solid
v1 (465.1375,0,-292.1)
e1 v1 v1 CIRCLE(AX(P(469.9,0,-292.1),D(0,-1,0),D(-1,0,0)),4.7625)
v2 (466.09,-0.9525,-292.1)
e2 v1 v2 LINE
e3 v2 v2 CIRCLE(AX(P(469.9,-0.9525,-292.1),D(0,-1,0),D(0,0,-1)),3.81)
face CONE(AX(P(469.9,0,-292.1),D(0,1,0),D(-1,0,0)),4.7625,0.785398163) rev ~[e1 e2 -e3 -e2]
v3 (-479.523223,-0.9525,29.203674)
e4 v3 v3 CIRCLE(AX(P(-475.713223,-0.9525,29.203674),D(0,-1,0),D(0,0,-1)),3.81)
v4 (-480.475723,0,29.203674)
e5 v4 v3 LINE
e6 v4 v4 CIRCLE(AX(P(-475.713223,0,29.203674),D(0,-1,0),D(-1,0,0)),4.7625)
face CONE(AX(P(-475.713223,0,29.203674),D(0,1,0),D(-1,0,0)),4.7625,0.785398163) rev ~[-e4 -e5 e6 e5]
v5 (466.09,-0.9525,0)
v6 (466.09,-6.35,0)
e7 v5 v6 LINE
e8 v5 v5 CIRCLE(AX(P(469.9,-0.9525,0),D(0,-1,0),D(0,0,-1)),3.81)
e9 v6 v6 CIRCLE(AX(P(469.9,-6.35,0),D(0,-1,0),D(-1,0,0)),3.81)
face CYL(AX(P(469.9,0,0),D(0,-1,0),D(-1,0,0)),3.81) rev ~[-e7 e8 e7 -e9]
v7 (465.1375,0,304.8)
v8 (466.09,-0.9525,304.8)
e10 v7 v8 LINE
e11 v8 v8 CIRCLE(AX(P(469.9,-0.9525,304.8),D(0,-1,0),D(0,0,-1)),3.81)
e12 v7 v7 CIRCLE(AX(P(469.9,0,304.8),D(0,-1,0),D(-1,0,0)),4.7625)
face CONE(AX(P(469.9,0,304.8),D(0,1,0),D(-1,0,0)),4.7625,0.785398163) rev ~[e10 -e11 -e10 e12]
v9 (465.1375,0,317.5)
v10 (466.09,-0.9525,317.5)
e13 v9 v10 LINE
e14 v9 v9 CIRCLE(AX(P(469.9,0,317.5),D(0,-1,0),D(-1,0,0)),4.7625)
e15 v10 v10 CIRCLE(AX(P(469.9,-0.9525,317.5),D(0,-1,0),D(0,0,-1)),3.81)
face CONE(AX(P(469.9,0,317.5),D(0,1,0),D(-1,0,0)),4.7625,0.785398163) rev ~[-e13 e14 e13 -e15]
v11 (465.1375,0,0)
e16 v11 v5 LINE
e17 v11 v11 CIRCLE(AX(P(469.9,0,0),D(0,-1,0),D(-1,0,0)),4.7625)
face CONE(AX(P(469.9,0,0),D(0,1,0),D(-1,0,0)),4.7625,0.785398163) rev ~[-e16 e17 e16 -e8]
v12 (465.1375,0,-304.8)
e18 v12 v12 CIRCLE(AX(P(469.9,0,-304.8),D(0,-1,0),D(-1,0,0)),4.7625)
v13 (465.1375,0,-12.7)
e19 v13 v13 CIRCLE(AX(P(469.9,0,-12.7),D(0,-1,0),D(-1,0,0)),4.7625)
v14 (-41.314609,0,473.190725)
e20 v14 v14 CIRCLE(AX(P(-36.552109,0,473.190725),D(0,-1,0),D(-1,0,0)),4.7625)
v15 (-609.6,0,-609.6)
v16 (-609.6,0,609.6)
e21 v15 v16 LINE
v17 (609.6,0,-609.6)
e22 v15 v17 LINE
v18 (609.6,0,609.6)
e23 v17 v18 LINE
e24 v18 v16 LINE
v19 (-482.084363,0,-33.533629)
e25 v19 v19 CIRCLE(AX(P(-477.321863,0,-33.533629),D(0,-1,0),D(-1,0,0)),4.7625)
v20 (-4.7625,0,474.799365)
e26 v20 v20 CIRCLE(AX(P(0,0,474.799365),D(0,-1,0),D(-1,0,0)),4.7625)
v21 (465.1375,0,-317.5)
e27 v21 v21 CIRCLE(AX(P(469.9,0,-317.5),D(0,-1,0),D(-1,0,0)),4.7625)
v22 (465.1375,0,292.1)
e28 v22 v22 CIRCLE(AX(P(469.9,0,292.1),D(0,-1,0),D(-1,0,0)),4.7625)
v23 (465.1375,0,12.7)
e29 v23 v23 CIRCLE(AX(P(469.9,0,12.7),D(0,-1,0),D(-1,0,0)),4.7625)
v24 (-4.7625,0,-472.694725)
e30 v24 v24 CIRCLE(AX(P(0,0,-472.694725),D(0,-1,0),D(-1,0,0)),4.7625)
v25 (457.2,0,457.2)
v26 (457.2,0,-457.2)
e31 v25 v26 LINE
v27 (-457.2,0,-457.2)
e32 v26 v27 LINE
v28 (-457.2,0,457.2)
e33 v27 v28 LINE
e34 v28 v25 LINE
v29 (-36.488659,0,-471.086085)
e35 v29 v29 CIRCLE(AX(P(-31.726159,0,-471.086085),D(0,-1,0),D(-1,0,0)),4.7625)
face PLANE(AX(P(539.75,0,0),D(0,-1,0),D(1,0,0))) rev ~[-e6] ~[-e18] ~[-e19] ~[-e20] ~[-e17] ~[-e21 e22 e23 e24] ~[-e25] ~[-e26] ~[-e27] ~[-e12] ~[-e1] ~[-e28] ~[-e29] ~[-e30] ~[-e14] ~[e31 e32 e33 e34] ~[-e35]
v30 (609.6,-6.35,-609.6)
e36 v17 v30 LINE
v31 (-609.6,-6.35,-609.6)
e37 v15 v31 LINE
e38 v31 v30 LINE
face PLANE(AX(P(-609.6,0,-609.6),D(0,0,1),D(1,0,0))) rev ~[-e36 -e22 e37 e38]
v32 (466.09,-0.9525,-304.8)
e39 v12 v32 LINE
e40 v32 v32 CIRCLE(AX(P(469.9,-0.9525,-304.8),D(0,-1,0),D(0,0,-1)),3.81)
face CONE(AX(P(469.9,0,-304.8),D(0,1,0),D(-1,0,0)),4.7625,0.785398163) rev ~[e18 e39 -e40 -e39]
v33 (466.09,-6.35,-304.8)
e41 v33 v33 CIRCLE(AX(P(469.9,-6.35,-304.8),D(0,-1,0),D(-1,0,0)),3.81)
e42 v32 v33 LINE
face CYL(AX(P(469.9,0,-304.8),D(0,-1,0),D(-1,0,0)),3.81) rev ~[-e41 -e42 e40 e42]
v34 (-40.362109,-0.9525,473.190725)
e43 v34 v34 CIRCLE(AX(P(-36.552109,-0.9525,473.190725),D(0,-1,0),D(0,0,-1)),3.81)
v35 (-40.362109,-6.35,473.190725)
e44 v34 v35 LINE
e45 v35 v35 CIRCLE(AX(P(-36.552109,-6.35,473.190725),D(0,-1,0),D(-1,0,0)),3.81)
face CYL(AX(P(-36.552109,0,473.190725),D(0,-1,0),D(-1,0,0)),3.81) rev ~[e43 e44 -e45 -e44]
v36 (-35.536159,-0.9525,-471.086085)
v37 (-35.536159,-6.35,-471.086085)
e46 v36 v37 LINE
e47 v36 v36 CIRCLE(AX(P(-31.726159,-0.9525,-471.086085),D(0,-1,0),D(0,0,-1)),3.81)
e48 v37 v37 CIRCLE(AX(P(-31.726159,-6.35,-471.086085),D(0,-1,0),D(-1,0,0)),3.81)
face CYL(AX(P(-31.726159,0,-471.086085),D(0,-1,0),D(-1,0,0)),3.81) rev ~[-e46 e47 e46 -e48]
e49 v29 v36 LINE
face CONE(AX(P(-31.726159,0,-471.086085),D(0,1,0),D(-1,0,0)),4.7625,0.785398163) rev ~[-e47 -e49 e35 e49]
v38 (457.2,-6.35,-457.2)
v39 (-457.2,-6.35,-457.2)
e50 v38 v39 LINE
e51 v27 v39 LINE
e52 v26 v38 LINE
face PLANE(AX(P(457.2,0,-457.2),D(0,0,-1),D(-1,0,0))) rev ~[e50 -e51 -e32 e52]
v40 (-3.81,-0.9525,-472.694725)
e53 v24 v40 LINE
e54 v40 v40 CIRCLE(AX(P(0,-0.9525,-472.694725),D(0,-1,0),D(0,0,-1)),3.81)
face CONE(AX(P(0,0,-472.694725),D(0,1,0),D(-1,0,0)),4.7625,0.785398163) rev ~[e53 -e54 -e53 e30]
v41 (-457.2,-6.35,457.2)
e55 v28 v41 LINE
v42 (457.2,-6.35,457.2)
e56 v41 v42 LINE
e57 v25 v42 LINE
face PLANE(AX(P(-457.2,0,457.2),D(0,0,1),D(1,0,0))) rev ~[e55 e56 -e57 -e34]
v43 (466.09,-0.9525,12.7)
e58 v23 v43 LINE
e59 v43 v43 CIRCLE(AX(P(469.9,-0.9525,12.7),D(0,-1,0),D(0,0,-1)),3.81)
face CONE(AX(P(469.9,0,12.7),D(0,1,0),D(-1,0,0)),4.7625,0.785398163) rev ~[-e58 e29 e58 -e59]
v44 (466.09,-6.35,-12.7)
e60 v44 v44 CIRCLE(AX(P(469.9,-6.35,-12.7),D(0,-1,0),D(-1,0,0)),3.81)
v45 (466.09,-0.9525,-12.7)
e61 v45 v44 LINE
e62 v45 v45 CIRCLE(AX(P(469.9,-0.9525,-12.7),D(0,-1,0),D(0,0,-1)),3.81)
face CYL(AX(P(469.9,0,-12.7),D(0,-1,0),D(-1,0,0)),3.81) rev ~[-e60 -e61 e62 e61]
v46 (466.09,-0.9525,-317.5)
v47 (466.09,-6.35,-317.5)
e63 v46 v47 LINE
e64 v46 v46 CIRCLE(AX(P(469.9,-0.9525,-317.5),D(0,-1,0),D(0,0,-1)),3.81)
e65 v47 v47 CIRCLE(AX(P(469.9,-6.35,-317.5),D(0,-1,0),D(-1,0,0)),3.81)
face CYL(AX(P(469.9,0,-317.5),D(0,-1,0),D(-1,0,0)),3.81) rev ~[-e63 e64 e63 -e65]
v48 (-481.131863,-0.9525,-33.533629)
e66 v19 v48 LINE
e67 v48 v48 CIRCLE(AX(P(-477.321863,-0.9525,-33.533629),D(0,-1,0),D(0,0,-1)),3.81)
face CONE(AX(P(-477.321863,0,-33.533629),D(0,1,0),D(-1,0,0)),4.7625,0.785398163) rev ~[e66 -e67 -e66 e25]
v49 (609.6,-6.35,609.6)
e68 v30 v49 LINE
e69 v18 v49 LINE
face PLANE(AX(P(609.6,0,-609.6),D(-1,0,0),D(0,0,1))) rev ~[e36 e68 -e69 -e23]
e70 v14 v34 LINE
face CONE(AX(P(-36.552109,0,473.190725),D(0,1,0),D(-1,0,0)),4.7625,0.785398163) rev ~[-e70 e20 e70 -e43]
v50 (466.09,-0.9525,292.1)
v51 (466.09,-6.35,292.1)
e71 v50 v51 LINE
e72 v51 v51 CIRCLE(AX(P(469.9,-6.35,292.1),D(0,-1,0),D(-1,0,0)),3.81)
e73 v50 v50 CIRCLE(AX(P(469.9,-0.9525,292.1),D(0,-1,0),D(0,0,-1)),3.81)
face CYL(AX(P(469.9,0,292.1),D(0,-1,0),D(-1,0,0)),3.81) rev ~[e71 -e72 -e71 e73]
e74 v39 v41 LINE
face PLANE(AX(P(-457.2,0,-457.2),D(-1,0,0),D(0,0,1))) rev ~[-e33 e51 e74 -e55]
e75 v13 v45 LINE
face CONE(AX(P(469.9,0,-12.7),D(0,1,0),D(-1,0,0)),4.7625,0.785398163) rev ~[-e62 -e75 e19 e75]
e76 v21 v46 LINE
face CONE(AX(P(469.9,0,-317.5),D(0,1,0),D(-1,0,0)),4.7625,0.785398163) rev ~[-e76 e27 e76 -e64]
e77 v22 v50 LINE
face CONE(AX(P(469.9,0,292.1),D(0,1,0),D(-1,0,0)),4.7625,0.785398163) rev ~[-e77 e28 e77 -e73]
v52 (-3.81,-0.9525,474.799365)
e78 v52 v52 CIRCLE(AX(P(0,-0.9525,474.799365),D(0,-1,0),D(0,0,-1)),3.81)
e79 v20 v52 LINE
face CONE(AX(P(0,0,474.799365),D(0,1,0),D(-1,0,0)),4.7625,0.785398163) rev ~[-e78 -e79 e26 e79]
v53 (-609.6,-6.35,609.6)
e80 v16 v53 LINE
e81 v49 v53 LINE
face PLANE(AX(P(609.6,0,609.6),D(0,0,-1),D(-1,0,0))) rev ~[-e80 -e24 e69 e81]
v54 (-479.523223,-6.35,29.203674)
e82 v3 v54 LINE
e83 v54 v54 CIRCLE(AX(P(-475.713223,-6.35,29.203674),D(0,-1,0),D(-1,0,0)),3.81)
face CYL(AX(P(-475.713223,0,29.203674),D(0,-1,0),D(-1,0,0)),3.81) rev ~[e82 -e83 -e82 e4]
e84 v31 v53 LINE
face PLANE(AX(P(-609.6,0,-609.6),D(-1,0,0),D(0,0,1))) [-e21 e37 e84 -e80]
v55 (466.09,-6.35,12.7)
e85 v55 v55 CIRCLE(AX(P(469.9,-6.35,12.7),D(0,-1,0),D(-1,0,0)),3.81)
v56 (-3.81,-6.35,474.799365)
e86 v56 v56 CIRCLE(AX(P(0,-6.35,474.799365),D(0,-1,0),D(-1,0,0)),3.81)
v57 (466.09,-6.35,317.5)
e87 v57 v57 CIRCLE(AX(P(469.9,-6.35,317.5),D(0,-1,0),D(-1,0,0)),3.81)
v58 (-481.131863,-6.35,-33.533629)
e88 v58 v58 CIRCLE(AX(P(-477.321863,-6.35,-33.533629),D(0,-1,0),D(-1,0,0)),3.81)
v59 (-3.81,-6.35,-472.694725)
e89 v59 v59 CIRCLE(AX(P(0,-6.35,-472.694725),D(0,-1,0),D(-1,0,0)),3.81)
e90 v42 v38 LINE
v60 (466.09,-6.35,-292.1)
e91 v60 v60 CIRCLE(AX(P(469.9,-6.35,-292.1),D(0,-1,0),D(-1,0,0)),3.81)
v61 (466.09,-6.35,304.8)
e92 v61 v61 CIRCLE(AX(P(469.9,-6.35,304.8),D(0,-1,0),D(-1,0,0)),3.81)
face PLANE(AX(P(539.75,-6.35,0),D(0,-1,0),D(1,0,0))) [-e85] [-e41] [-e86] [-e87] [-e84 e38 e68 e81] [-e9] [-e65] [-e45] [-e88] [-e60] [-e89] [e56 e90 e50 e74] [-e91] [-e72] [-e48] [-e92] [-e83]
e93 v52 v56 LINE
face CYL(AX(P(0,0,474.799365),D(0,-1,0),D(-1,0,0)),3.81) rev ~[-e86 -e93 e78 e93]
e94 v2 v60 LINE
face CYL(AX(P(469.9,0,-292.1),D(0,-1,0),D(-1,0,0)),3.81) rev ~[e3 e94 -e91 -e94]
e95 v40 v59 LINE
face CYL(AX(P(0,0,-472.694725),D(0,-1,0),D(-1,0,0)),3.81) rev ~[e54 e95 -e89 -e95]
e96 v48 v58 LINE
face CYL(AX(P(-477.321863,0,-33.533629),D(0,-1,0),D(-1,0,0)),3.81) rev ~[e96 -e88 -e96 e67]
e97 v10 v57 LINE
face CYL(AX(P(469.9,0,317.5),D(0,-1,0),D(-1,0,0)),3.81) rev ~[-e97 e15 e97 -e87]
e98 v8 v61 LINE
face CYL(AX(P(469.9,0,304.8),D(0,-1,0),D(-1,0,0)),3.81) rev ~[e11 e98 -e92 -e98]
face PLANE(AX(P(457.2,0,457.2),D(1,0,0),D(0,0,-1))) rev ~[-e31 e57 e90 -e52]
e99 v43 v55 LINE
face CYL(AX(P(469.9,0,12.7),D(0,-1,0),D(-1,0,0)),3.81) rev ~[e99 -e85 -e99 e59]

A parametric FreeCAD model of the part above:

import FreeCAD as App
import Part
import Sketcher
from FreeCAD import Vector
Q = App.Units.Quantity


def add_polygon(sketch, points):
    """Adds a closed chain of lines whose ends are joined by coincident constraints."""
    first, n = sketch.GeometryCount, len(points)
    for a, b in zip(points, points[1:] + points[:1]):
        sketch.addGeometry(Part.LineSegment(App.Vector(*a, 0), App.Vector(*b, 0)), False)
    for i in range(n):
        sketch.addConstraint(Sketcher.Constraint("Coincident", first + i, 2, first + (i + 1) % n, 1))

doc = App.newDocument("Part")
params = doc.addObject("Spreadsheet::Sheet", "Params")
for row, (alias, value) in enumerate([
    ("sketch1_width", "48 in"),
    ("sketch1_width2", "36 in"),
    ("pad1_length", "0.25 in"),
    ("sketch2_diameter", "0.3 in"),
    ("hole_diameter", "0.3 in"),
    ("hole_csink_diameter", "0.375 in"),
], start=1):
    params.set(f"A{row}", alias)
    params.set(f"B{row}", "=" + value)
    params.setAlias(f"B{row}", alias)

body = doc.addObject("PartDesign::Body", "Body")

# Sketch on XZ plane
sketch1 = doc.addObject("Sketcher::SketchObject", "Sketch")
body.addObject(sketch1)
sketch1.AttachmentSupport = (doc.XZ_Plane, [""])
sketch1.MapMode = "FlatFace"
add_polygon(sketch1, [(610, -610), (610, 610), (-610, 610), (-610, -610)])  # lines 0-3
add_polygon(sketch1, [(457, 457), (457, -457), (-457, -457), (-457, 457)])  # lines 4-7
sketch1.addConstraint([
    Sketcher.Constraint("Vertical", 0),
    Sketcher.Constraint("Horizontal", 1),
    Sketcher.Constraint("Vertical", 2),
    Sketcher.Constraint("Horizontal", 3),
    Sketcher.Constraint("Vertical", 4),
    Sketcher.Constraint("Horizontal", 5),
    Sketcher.Constraint("Vertical", 6),
    Sketcher.Constraint("Horizontal", 7),
    Sketcher.Constraint("Symmetric", 0, 2, 2, 2, -1, 1),
    Sketcher.Constraint("Symmetric", 4, 2, 6, 2, -1, 1),
    Sketcher.Constraint("Equal", 3, 0),
    Sketcher.Constraint("Equal", 7, 4),
    Sketcher.Constraint("DistanceX", 1, 2, 1, 1, Q("48 in")),
    Sketcher.Constraint("DistanceX", 5, 2, 5, 1, Q("36 in")),
])
sketch1.setExpression("Constraints[20]", "Params.sketch1_width")
sketch1.setExpression("Constraints[21]", "Params.sketch1_width2")
pad1 = doc.addObject("PartDesign::Pad", "Pad")
body.addObject(pad1)
pad1.Profile = sketch1
pad1.setExpression("Length", "Params.pad1_length")

# Sketch on XZ plane
sketch2 = doc.addObject("Sketcher::SketchObject", "Sketch001")
body.addObject(sketch2)
sketch2.AttachmentSupport = (doc.XZ_Plane, [""])
sketch2.MapMode = "FlatFace"
sketch2.addGeometry([
    Part.Circle(Vector(469.9, 317.5, 0), Vector(0, 0, 1), 3.8),  # 0
    Part.Circle(Vector(469.9, 304.8, 0), Vector(0, 0, 1), 3.8),  # 1
    Part.Circle(Vector(469.9, 292.1, 0), Vector(0, 0, 1), 3.8),  # 2
    Part.Circle(Vector(469.9, 12.7, 0), Vector(0, 0, 1), 3.8),  # 3
    Part.Circle(Vector(469.9, -12.7, 0), Vector(0, 0, 1), 3.8),  # 4
    Part.Circle(Vector(469.9, 0, 0), Vector(0, 0, 1), 3.8),  # 5
    Part.Circle(Vector(469.9, -292.1, 0), Vector(0, 0, 1), 3.8),  # 6
    Part.Circle(Vector(469.9, -304.8, 0), Vector(0, 0, 1), 3.8),  # 7
    Part.Circle(Vector(469.9, -317.5, 0), Vector(0, 0, 1), 3.8),  # 8
    Part.Circle(Vector(0, 474.8, 0), Vector(0, 0, 1), 3.8),  # 9
    Part.Circle(Vector(-36.6, 473.2, 0), Vector(0, 0, 1), 3.8),  # 10
    Part.Circle(Vector(-475.7, 29.2, 0), Vector(0, 0, 1), 3.8),  # 11
    Part.Circle(Vector(-477.3, -33.5, 0), Vector(0, 0, 1), 3.8),  # 12
    Part.Circle(Vector(-31.7, -471.1, 0), Vector(0, 0, 1), 3.8),  # 13
    Part.Circle(Vector(0, -472.7, 0), Vector(0, 0, 1), 3.8),  # 14
], False)
sketch2.addConstraint([
    Sketcher.Constraint("Equal", 0, 1),
    Sketcher.Constraint("Equal", 1, 2),
    Sketcher.Constraint("Equal", 2, 3),
    Sketcher.Constraint("Equal", 3, 4),
    Sketcher.Constraint("Equal", 4, 5),
    Sketcher.Constraint("Equal", 5, 6),
    Sketcher.Constraint("Equal", 6, 7),
    Sketcher.Constraint("Equal", 7, 8),
    Sketcher.Constraint("Equal", 8, 9),
    Sketcher.Constraint("Equal", 9, 10),
    Sketcher.Constraint("Equal", 10, 11),
    Sketcher.Constraint("Equal", 11, 12),
    Sketcher.Constraint("Equal", 12, 13),
    Sketcher.Constraint("Equal", 13, 14),
    Sketcher.Constraint("Symmetric", 3, 3, 4, 3, -1),
    Sketcher.Constraint("Symmetric", 2, 3, 6, 3, -1),
    Sketcher.Constraint("Symmetric", 1, 3, 7, 3, -1),
    Sketcher.Constraint("Symmetric", 0, 3, 8, 3, -1),
    Sketcher.Constraint("PointOnObject", 5, 3, -1),
    Sketcher.Constraint("PointOnObject", 9, 3, -2),
    Sketcher.Constraint("PointOnObject", 14, 3, -2),
    Sketcher.Constraint("Vertical", 0, 3, 1, 3),
    Sketcher.Constraint("Vertical", 1, 3, 2, 3),
    Sketcher.Constraint("Vertical", 2, 3, 3, 3),
    Sketcher.Constraint("Vertical", 4, 3, 5, 3),
    Sketcher.Constraint("Diameter", 0, Q("0.3 in")),
    Sketcher.Constraint("DistanceY", -1, 1, 1, 3, Q("12 in")),
    Sketcher.Constraint("DistanceY", 2, 3, 0, 3, Q("1 in")),
    Sketcher.Constraint("DistanceY", 3, 3, 2, 3, Q("11 in")),
    Sketcher.Constraint("DistanceY", 4, 3, 3, 3, Q("1 in")),
    Sketcher.Constraint("DistanceX", -1, 1, 0, 3, Q("18.5 in")),
    Sketcher.Constraint("DistanceX", 10, 3, -1, 1, 36.552109),
    Sketcher.Constraint("DistanceY", 12, 3, -1, 1, 33.533629),
    Sketcher.Constraint("DistanceX", 13, 3, -1, 1, 31.726159),
    Sketcher.Constraint("DistanceY", 10, 3, 9, 3, 1.60864),
    Sketcher.Constraint("DistanceY", 11, 3, 10, 3, 443.987051),
    Sketcher.Constraint("DistanceX", 12, 3, 11, 3, 1.60864),
    Sketcher.Constraint("DistanceY", 13, 3, 11, 3, 500.289759),
    Sketcher.Constraint("DistanceY", 14, 3, 13, 3, 1.60864),
    Sketcher.Constraint("DistanceY", -1, 1, 9, 3, 474.799365),
    Sketcher.Constraint("DistanceX", 11, 3, -1, 1, 475.713223),
])
sketch2.setExpression("Constraints[25]", "Params.sketch2_diameter")
doc.recompute()
hole = doc.addObject("PartDesign::Hole", "Hole")
body.addObject(hole)
hole.Profile = sketch2
hole.ThreadType = "None"
hole.setExpression("Diameter", "Params.hole_diameter")
hole.DepthType = "ThroughAll"
hole.HoleCutType = "Countersink"
hole.setExpression("HoleCutDiameter", "Params.hole_csink_diameter")
hole.HoleCutCountersinkAngle = 90
hole.Reversed = True

doc.recompute()
